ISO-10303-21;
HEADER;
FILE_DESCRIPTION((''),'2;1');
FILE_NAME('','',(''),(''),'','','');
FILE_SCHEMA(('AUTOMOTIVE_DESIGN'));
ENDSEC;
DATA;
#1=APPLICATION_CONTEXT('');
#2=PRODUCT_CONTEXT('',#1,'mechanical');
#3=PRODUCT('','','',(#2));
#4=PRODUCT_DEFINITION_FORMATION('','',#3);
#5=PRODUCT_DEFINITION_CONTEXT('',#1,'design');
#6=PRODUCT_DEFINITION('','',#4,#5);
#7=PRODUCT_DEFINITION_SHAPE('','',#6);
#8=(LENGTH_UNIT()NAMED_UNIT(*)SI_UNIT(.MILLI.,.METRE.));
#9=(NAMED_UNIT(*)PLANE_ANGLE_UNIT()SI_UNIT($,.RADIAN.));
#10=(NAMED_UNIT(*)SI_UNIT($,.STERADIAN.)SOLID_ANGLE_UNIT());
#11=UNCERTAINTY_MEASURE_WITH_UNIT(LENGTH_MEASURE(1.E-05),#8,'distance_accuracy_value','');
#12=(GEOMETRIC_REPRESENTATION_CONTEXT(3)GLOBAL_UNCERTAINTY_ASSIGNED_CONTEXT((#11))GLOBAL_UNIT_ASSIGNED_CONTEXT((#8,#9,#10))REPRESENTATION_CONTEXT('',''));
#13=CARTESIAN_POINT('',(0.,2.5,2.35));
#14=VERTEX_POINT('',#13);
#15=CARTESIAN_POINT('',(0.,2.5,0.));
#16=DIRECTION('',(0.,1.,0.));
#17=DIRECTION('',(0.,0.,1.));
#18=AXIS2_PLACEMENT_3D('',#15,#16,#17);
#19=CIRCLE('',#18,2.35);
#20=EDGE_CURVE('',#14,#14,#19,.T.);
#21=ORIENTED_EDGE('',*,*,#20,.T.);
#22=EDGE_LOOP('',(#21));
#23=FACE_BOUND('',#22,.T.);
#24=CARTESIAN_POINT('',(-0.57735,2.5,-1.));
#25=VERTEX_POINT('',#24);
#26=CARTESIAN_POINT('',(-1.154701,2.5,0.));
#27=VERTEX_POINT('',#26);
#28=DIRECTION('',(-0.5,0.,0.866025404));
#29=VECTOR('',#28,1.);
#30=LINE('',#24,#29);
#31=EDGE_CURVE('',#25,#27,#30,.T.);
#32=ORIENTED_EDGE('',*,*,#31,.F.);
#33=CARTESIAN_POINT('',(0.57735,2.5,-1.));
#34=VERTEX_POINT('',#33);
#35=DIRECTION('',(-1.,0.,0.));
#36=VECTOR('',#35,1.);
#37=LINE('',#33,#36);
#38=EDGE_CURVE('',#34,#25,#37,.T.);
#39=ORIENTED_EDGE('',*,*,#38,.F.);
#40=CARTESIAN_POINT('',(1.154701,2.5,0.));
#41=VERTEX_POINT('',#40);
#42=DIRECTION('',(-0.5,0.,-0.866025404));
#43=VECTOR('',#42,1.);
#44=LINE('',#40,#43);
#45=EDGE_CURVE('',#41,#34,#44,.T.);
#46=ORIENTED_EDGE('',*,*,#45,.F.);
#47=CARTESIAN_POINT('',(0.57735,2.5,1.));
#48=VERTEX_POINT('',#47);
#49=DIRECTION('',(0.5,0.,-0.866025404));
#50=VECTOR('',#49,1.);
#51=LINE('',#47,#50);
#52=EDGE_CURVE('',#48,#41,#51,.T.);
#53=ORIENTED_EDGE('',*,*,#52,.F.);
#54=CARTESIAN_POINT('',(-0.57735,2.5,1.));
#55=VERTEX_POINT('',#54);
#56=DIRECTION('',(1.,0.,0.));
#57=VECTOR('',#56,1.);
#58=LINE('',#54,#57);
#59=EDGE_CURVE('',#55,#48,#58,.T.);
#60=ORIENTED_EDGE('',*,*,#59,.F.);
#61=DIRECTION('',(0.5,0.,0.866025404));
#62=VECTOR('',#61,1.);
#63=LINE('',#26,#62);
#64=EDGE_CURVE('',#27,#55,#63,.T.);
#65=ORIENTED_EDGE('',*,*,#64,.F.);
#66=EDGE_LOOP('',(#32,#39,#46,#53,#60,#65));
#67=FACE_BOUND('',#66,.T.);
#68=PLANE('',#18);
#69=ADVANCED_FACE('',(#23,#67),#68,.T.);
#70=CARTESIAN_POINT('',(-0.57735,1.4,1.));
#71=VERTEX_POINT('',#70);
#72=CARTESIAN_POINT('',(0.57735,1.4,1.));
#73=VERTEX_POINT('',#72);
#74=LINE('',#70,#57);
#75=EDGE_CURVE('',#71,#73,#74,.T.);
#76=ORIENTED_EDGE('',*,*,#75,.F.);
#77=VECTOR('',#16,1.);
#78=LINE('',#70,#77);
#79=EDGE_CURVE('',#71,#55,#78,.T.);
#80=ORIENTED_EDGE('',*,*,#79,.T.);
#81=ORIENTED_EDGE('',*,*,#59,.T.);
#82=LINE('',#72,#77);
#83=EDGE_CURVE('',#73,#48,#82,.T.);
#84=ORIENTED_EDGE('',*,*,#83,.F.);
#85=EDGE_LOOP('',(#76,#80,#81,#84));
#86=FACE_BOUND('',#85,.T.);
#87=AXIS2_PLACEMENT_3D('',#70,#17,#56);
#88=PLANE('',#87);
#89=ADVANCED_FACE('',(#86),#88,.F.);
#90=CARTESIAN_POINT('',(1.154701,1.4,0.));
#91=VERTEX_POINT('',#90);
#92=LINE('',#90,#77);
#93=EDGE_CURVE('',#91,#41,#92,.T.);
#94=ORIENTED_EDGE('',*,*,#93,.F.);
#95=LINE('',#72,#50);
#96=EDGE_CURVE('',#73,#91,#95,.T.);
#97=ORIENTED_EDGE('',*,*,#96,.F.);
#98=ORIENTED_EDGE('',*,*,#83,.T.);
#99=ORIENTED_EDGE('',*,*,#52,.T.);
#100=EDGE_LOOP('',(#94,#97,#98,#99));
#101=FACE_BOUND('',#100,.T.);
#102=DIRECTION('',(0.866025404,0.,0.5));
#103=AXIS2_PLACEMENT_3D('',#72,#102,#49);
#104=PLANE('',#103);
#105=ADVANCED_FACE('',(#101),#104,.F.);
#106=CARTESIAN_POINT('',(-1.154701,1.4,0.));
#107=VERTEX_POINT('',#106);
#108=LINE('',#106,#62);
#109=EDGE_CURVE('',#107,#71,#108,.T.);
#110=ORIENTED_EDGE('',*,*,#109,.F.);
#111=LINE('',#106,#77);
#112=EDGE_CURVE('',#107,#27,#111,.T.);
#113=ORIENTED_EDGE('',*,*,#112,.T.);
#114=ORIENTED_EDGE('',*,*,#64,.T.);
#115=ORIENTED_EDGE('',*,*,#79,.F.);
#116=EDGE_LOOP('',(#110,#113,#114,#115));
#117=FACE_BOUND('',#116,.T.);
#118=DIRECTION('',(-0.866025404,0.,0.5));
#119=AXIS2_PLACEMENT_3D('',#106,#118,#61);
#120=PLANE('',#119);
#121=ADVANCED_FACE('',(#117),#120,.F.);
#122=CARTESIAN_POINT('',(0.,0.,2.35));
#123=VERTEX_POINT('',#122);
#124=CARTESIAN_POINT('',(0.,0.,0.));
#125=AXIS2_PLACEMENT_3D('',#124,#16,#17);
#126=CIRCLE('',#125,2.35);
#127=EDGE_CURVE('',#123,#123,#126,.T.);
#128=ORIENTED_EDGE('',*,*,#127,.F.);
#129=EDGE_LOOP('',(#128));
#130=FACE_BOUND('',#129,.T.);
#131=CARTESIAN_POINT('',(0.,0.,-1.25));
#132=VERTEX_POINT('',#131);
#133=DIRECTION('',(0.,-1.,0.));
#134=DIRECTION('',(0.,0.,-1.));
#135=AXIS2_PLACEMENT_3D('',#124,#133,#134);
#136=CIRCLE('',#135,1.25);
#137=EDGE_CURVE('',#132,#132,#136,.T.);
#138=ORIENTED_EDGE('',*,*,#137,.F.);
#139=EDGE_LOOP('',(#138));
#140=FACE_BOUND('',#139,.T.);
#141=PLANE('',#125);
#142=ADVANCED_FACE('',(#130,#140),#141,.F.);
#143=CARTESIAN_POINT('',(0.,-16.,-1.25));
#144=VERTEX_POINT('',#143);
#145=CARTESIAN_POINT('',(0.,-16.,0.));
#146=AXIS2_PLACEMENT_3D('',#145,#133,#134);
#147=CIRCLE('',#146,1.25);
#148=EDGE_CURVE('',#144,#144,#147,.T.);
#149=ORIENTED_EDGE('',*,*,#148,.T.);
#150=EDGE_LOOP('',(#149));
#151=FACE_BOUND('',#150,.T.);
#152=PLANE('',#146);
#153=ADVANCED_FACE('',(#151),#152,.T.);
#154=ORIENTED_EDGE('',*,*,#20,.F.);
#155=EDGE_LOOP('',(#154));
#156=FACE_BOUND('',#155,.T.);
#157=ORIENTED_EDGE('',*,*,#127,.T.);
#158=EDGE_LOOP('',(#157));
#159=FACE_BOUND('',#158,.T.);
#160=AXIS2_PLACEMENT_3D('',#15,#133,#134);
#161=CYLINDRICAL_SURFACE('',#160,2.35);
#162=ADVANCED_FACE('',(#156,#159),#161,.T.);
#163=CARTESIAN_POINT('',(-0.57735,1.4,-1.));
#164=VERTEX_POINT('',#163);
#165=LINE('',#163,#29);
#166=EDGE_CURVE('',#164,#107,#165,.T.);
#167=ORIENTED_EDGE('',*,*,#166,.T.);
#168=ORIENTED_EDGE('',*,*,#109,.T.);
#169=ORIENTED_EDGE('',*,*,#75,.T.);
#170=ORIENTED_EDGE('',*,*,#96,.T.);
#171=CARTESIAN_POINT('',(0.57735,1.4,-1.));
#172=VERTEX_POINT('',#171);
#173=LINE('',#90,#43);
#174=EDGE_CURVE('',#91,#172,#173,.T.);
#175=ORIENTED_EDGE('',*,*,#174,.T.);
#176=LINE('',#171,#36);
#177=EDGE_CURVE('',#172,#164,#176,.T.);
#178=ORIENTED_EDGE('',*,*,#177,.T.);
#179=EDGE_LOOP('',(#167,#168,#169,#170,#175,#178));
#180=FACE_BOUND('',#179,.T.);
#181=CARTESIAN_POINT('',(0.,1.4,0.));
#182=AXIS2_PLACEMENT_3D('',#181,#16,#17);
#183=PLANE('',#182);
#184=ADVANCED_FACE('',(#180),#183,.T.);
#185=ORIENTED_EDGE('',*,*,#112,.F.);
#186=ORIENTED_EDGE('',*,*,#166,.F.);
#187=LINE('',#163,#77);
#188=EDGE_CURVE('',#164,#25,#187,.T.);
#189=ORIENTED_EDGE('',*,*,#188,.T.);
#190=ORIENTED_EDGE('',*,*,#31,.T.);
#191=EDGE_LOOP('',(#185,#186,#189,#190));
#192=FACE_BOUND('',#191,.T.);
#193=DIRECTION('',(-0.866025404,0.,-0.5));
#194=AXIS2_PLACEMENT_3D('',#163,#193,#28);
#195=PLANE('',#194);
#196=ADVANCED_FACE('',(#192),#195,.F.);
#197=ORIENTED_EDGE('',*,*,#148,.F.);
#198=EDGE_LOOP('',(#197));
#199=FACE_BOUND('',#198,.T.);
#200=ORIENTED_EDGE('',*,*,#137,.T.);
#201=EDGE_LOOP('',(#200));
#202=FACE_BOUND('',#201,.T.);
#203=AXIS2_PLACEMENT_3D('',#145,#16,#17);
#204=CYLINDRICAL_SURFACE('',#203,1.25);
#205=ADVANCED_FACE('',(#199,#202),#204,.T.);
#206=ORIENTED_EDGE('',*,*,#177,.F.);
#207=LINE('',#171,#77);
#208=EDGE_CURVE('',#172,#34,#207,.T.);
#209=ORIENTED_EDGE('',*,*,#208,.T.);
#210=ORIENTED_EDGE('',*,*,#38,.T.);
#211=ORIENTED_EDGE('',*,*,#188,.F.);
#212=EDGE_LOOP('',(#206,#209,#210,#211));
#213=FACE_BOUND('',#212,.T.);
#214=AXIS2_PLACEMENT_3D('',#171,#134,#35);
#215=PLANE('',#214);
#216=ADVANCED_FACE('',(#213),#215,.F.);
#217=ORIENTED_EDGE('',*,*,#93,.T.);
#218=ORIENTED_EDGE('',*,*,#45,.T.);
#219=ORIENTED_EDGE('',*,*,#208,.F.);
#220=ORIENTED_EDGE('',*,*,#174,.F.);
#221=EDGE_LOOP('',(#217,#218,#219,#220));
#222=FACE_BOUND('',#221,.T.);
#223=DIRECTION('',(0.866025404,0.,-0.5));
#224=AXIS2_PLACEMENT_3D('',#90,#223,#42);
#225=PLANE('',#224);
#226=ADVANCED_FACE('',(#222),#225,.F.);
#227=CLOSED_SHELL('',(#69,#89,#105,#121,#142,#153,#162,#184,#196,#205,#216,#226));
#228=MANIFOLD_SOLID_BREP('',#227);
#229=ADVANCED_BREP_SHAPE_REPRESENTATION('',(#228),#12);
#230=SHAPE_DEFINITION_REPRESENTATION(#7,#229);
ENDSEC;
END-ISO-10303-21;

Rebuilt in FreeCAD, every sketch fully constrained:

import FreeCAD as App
import Part
import Sketcher
from FreeCAD import Vector
Q = App.Units.Quantity

doc = App.newDocument("Part")
body = doc.addObject("PartDesign::Body", "Body")

# Sketch on XZ plane
sketch1 = body.newObject("Sketcher::SketchObject", "Sketch")
sketch1.AttachmentSupport = (doc.getObject("XZ_Plane"), [""])
sketch1.MapMode = "FlatFace"
sketch1.addGeometry(Part.Circle(Vector(0, 0, 0), Vector(0, 0, 1), 2.4), False)
sketch1.addConstraint([
    Sketcher.Constraint("Coincident", 0, 3, -1, 1),
    Sketcher.Constraint("Diameter", 0, Q("4.7 mm")),
])
pad1 = body.newObject("PartDesign::Pad", "Pad")
pad1.Profile = sketch1
pad1.Length = 2.5
pad1.Reversed = True

# Sketch on XZ plane
sketch2 = body.newObject("Sketcher::SketchObject", "Sketch001")
sketch2.AttachmentSupport = (doc.getObject("XZ_Plane"), [""])
sketch2.MapMode = "FlatFace"
sketch2.AttachmentOffset = App.Placement(Vector(0, 0, -2.5), App.Rotation())
sketch2.addGeometry([
    Part.LineSegment(Vector(1.2, 0, 0), Vector(0.6, -1, 0)),  # 0
    Part.LineSegment(Vector(0.6, -1, 0), Vector(-0.6, -1, 0)),  # 1
    Part.LineSegment(Vector(-0.6, -1, 0), Vector(-1.2, 0, 0)),  # 2
    Part.LineSegment(Vector(-1.2, 0, 0), Vector(-0.6, 1, 0)),  # 3
    Part.LineSegment(Vector(-0.6, 1, 0), Vector(0.6, 1, 0)),  # 4
    Part.LineSegment(Vector(0.6, 1, 0), Vector(1.2, 0, 0)),  # 5
], False)
sketch2.addConstraint([
    Sketcher.Constraint("Coincident", 0, 2, 1, 1),
    Sketcher.Constraint("Coincident", 1, 2, 2, 1),
    Sketcher.Constraint("Coincident", 2, 2, 3, 1),
    Sketcher.Constraint("Coincident", 3, 2, 4, 1),
    Sketcher.Constraint("Coincident", 4, 2, 5, 1),
    Sketcher.Constraint("Coincident", 5, 2, 0, 1),
    Sketcher.Constraint("Horizontal", 1),
    Sketcher.Constraint("Horizontal", 4),
    Sketcher.Constraint("Symmetric", 0, 2, 3, 2, -1, 1),
    Sketcher.Constraint("Symmetric", 2, 2, 5, 2, -1, 1),
    Sketcher.Constraint("PointOnObject", 2, 2, -1),
    Sketcher.Constraint("Parallel", 2, 5),
    Sketcher.Constraint("Vertical", 1, 2, 3, 2),
    Sketcher.Constraint("Angle", 0, Q("-120 deg")),
    Sketcher.Constraint("DistanceY", 0, 2, -1, 1, Q("1 mm")),
    Sketcher.Constraint("DistanceX", 1, 2, 1, 1, Q("1.154701 mm")),
])
pocket1 = body.newObject("PartDesign::Pocket", "Pocket")
pocket1.Profile = sketch2
pocket1.Length = 1.1
pocket1.Reversed = True

# Sketch on XZ plane
sketch3 = body.newObject("Sketcher::SketchObject", "Sketch002")
sketch3.AttachmentSupport = (doc.getObject("XZ_Plane"), [""])
sketch3.MapMode = "FlatFace"
sketch3.addGeometry(Part.Circle(Vector(0, 0, 0), Vector(0, 0, 1), 1.2), False)
sketch3.addConstraint([
    Sketcher.Constraint("Coincident", 0, 3, -1, 1),
    Sketcher.Constraint("Diameter", 0, Q("2.5 mm")),
])
pad2 = body.newObject("PartDesign::Pad", "Pad001")
pad2.Profile = sketch3
pad2.Length = 16

doc.recompute()
